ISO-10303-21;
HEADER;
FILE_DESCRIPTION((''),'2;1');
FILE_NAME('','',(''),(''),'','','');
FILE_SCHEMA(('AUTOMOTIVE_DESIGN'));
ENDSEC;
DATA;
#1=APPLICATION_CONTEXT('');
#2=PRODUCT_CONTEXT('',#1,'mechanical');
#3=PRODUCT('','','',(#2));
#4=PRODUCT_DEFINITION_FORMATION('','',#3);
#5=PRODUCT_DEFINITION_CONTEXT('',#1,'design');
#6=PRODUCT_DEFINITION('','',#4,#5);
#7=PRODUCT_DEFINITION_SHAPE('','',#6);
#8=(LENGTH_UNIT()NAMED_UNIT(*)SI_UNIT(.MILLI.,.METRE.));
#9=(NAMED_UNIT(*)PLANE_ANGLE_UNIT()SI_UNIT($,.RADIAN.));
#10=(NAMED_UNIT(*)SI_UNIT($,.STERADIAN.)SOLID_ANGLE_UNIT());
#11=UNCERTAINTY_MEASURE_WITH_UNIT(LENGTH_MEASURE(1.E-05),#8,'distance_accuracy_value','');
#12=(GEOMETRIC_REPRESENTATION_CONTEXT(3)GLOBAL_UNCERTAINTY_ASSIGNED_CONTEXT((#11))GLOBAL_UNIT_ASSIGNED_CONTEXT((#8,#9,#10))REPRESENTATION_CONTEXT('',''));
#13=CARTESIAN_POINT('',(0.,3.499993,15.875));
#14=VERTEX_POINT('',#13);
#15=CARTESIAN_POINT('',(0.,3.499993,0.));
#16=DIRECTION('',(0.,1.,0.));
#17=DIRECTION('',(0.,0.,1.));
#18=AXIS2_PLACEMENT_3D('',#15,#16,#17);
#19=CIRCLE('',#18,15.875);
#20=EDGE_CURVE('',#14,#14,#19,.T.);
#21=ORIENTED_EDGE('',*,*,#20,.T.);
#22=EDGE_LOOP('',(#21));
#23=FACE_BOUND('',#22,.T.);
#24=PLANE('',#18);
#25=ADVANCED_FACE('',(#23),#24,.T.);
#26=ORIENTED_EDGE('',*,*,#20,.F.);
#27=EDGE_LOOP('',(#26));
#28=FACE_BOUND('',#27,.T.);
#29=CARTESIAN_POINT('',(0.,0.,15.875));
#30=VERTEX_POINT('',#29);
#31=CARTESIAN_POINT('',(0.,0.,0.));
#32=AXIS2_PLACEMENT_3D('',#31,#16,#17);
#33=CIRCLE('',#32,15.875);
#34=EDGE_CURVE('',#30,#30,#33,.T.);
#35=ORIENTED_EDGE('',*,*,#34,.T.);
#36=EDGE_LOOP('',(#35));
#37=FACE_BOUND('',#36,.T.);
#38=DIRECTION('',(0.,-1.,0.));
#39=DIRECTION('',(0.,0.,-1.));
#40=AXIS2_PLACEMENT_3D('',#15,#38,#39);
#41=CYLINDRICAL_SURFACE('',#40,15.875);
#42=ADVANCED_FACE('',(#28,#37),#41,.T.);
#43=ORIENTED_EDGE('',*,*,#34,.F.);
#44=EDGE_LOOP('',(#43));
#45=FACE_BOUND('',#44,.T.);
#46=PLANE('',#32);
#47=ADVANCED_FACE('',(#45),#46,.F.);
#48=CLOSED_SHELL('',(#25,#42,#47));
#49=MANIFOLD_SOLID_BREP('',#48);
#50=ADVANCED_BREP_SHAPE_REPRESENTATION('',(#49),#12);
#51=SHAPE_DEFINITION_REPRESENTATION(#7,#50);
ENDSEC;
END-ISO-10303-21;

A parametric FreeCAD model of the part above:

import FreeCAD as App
import Part
import Sketcher
Q = App.Units.Quantity

doc = App.newDocument("Part")
body = doc.addObject("PartDesign::Body", "Body")

sketch1 = body.newObject("Sketcher::SketchObject", "Sketch")
sketch1.AttachmentSupport = (doc.getObject("XZ_Plane"), [""])
sketch1.MapMode = "FlatFace"
sketch1.addGeometry(Part.Circle(App.Vector(0, 0, 0), App.Vector(0, 0, 1), 15.875), False)
sketch1.addConstraint([
    Sketcher.Constraint("Coincident", 0, 3, -1, 1),
    Sketcher.Constraint("Diameter", 0, Q("1.25 in")),
])
pad1 = body.newObject("PartDesign::Pad", "Pad")
pad1.Profile = sketch1
pad1.Length = 3.499993
pad1.Reversed = True

doc.recompute()
